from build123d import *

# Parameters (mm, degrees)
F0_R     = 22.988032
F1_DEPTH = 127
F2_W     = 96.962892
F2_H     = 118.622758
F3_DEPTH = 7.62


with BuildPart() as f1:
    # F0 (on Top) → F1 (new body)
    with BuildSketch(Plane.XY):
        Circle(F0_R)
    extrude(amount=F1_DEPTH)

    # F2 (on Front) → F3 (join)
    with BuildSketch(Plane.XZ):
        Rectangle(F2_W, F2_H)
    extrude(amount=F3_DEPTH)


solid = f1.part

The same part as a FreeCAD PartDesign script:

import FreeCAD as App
import Part
import Sketcher
from FreeCAD import Vector
Q = App.Units.Quantity


def add_polygon(sketch, points):
    """Adds a closed chain of lines whose ends are joined by coincident constraints."""
    first, n = sketch.GeometryCount, len(points)
    for a, b in zip(points, points[1:] + points[:1]):
        sketch.addGeometry(Part.LineSegment(App.Vector(*a, 0), App.Vector(*b, 0)), False)
    for i in range(n):
        sketch.addConstraint(Sketcher.Constraint("Coincident", first + i, 2, first + (i + 1) % n, 1))

doc = App.newDocument("Part")
body = doc.addObject("PartDesign::Body", "Body")

sketch1 = doc.addObject("Sketcher::SketchObject", "Sketch")
body.addObject(sketch1)
sketch1.AttachmentSupport = (doc.XY_Plane, [""])
sketch1.MapMode = "FlatFace"
sketch1.addGeometry(Part.Circle(Vector(0, 0, 0), Vector(0, 0, 1), 23), False)
sketch1.addConstraint([
    Sketcher.Constraint("Coincident", 0, 3, -1, 1),
    Sketcher.Constraint("Diameter", 0, Q("45.976064 mm")),
])
pad1 = doc.addObject("PartDesign::Pad", "Pad")
body.addObject(pad1)
pad1.Profile = sketch1
pad1.Length = Q("5 in")

sketch2 = doc.addObject("Sketcher::SketchObject", "Sketch001")
body.addObject(sketch2)
sketch2.AttachmentSupport = (doc.XZ_Plane, [""])
sketch2.MapMode = "FlatFace"
add_polygon(sketch2, [(-48, 59), (-48, -59), (48, -59), (48, 59)])
sketch2.addConstraint([
    Sketcher.Constraint("Vertical", 0),
    Sketcher.Constraint("Horizontal", 1),
    Sketcher.Constraint("Vertical", 2),
    Sketcher.Constraint("Horizontal", 3),
    Sketcher.Constraint("Symmetric", 0, 2, 2, 2, -1, 1),
    Sketcher.Constraint("DistanceX", 1, 1, 1, 2, Q("96.962892 mm")),
    Sketcher.Constraint("DistanceY", 0, 2, 0, 1, Q("118.622758 mm")),
])
pad2 = doc.addObject("PartDesign::Pad", "Pad001")
body.addObject(pad2)
pad2.Profile = sketch2
pad2.Length = Q("0.3 in")

doc.recompute()
